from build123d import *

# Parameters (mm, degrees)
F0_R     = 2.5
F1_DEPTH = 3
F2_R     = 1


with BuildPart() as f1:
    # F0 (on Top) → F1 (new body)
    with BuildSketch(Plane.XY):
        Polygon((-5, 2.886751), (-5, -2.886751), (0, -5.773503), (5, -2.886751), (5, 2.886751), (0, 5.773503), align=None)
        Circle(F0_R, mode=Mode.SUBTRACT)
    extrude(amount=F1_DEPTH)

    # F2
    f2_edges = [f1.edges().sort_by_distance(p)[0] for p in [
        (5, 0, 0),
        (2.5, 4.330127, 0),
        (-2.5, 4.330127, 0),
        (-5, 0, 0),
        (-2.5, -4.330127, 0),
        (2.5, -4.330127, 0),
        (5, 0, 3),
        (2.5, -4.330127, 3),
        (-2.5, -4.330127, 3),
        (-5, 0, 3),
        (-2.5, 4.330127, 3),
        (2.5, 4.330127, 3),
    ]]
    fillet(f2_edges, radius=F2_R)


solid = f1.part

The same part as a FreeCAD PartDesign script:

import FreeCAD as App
import Part
import Sketcher

V = App.Vector
Q = App.Units.Quantity


def edges_at(feature, points):
    """Names of the edges that pass closest to the given points."""
    edges = feature.Shape.Edges
    near = lambda p: min(range(len(edges)), key=lambda i: edges[i].distToShape(Part.Vertex(*p))[0])
    return sorted({f"Edge{near(p) + 1}" for p in points})

doc = App.newDocument("Part")
params = doc.addObject("Spreadsheet::Sheet", "Params")
for row, (alias, value) in enumerate([
    ("sketch1_diameter", "5 mm"),
    ("pad1_length", "3 mm"),
    ("fillet_radius", "1 mm"),
], start=1):
    params.set(f"A{row}", alias)
    params.set(f"B{row}", "=" + value)
    params.setAlias(f"B{row}", alias)

body = doc.addObject("PartDesign::Body", "Body")

# Sketch on XY plane
sketch1 = body.newObject("Sketcher::SketchObject", "Sketch")
sketch1.AttachmentSupport = (doc.getObject("XY_Plane"), [""])
sketch1.MapMode = "FlatFace"
sketch1.addGeometry([
    Part.LineSegment(V(-5, 2.9, 0), V(-5, -2.9, 0)),  # 0
    Part.LineSegment(V(-5, -2.9, 0), V(0, -5.8, 0)),  # 1
    Part.LineSegment(V(0, -5.8, 0), V(5, -2.9, 0)),  # 2
    Part.LineSegment(V(5, -2.9, 0), V(5, 2.9, 0)),  # 3
    Part.LineSegment(V(5, 2.9, 0), V(0, 5.8, 0)),  # 4
    Part.LineSegment(V(0, 5.8, 0), V(-5, 2.9, 0)),  # 5
    Part.Circle(V(0, 0, 0), V(0, 0, 1), 2.5),  # 6
], False)
sketch1.addConstraint([
    Sketcher.Constraint("Coincident", 0, 2, 1, 1),
    Sketcher.Constraint("Coincident", 1, 2, 2, 1),
    Sketcher.Constraint("Coincident", 2, 2, 3, 1),
    Sketcher.Constraint("Coincident", 3, 2, 4, 1),
    Sketcher.Constraint("Coincident", 4, 2, 5, 1),
    Sketcher.Constraint("Coincident", 5, 2, 0, 1),
    Sketcher.Constraint("Vertical", 0),
    Sketcher.Constraint("Vertical", 3),
    Sketcher.Constraint("Coincident", 6, 3, -1, 1),
    Sketcher.Constraint("Symmetric", 0, 2, 3, 2, -1, 1),
    Sketcher.Constraint("Symmetric", 1, 2, 4, 2, -1, 1),
    Sketcher.Constraint("PointOnObject", 1, 2, -2),
    Sketcher.Constraint("Parallel", 2, 5),
    Sketcher.Constraint("Horizontal", 0, 2, 2, 2),
    Sketcher.Constraint("Diameter", 6, 5.0),
    Sketcher.Constraint("Angle", 1, Q("-30.000006 deg")),
    Sketcher.Constraint("DistanceX", 0, 2, -1, 1, 5.0),
    Sketcher.Constraint("DistanceY", 0, 2, 0, 1, 5.773502),
])
sketch1.setExpression("Constraints[14]", "Params.sketch1_diameter")
pad1 = body.newObject("PartDesign::Pad", "Pad")
pad1.Profile = sketch1
pad1.setExpression("Length", "Params.pad1_length")
doc.recompute()

fillet = body.newObject("PartDesign::Fillet", "Fillet")
fillet.Base = (pad1, edges_at(pad1, [
    (5, 0, 0),
    (2.5, 4.33, 0),
    (-2.5, 4.33, 0),
    (-5, 0, 0),
    (-2.5, -4.33, 0),
    (2.5, -4.33, 0),
    (5, 0, 3),
    (2.5, -4.33, 3),
    (-2.5, -4.33, 3),
    (-5, 0, 3),
    (-2.5, 4.33, 3),
    (2.5, 4.33, 3),
]))
fillet.setExpression("Radius", "Params.fillet_radius")

doc.recompute()
